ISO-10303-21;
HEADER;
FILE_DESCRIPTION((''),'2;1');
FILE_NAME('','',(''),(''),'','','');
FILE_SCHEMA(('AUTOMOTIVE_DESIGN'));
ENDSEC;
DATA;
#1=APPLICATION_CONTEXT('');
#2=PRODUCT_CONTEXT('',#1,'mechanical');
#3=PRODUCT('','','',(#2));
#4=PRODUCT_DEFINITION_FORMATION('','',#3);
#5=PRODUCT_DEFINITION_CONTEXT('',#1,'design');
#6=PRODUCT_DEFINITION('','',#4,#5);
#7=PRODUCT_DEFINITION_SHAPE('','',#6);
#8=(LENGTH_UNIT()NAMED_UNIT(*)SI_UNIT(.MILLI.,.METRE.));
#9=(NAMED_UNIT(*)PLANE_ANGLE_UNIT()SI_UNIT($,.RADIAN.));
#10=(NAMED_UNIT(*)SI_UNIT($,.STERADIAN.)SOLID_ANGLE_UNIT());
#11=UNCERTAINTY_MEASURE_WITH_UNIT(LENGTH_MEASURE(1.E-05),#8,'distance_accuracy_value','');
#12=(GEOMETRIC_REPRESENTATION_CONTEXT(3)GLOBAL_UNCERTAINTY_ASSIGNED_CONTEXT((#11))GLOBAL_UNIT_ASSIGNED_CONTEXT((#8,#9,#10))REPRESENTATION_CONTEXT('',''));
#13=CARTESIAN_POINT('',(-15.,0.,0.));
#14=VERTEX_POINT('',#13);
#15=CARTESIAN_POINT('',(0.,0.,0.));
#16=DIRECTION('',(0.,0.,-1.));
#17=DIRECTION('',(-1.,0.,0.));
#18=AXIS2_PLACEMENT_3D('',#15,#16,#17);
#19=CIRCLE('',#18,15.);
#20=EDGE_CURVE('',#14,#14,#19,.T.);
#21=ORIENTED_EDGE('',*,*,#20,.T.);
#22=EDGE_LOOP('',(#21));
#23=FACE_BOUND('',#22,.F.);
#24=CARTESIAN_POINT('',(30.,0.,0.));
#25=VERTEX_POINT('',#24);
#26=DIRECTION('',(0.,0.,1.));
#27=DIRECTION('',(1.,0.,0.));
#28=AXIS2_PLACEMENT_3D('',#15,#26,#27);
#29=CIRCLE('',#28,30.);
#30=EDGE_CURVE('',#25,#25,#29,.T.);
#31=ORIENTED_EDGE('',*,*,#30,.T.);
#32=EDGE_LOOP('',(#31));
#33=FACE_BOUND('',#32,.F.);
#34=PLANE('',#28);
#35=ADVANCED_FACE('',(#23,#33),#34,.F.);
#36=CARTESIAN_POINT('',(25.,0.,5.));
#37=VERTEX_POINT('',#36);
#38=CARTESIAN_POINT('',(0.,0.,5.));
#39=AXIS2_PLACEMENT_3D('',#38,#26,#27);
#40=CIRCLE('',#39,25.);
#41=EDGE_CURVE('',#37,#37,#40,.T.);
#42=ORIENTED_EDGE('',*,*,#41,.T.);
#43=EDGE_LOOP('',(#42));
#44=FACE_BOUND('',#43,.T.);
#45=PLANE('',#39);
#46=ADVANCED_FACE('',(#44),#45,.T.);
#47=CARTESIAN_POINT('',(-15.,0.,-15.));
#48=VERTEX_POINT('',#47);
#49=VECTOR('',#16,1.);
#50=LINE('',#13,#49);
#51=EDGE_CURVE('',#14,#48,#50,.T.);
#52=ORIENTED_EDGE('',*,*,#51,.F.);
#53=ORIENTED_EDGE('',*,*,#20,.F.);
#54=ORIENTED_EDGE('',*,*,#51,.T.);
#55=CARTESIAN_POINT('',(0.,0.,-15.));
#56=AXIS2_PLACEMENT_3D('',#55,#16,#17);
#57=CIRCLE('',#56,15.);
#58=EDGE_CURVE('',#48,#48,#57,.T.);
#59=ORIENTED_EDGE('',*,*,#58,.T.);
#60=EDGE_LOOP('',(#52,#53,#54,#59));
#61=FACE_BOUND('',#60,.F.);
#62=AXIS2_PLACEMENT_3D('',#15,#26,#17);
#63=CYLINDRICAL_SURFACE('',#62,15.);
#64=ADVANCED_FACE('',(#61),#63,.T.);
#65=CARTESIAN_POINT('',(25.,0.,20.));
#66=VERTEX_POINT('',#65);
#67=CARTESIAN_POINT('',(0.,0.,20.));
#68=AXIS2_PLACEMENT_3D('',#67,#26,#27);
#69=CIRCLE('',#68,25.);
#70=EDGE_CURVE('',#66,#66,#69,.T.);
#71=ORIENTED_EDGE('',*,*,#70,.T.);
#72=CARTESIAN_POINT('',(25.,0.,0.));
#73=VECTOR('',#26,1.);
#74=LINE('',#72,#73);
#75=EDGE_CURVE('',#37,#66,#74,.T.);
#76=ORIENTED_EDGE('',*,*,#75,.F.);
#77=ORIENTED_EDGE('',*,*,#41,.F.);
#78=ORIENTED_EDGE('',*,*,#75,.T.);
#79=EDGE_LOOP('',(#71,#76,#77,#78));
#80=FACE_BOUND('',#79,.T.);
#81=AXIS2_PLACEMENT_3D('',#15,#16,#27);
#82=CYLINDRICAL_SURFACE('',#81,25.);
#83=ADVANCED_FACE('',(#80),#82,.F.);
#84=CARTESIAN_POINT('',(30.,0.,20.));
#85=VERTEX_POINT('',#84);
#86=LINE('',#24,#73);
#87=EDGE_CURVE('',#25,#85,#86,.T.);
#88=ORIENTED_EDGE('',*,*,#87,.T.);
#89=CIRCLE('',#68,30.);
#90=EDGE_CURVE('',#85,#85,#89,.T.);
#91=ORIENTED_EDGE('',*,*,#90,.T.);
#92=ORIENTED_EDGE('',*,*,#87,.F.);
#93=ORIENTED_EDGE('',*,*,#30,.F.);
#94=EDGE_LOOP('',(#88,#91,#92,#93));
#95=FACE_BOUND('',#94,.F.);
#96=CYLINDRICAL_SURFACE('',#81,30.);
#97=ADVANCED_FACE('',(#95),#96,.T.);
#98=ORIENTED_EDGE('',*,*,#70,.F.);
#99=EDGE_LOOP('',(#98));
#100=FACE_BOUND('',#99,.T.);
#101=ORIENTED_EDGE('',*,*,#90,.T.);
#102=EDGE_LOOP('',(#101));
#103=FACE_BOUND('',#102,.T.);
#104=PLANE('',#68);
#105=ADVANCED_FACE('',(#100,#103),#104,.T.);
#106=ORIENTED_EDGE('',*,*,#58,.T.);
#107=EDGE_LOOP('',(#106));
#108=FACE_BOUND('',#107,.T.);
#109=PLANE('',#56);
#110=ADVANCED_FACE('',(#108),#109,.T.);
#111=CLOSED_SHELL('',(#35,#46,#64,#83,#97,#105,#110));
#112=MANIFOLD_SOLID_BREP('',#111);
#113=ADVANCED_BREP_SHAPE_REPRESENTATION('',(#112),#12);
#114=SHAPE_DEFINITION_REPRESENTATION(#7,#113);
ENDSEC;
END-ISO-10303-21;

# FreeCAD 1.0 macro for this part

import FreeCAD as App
import Part
import Sketcher
from FreeCAD import Vector
Q = App.Units.Quantity

doc = App.newDocument("Part")
body = doc.addObject("PartDesign::Body", "Body")

# Sketch on XY plane
sketch1 = body.newObject("Sketcher::SketchObject", "Sketch")
sketch1.AttachmentSupport = (doc.getObject("XY_Plane"), [""])
sketch1.MapMode = "FlatFace"
sketch1.addGeometry(Part.Circle(Vector(0, 0, 0), Vector(0, 0, 1), 30), False)
sketch1.addGeometry(Part.Circle(Vector(0, 0, 0), Vector(0, 0, 1), 25), False)
sketch1.addConstraint(Sketcher.Constraint("Coincident", 0, 3, -1, 1))
sketch1.addConstraint(Sketcher.Constraint("Coincident", 1, 3, -1, 1))
sketch1.addConstraint(Sketcher.Constraint("Diameter", 0, Q("60 mm")))
sketch1.addConstraint(Sketcher.Constraint("Diameter", 1, Q("50 mm")))
pad1 = body.newObject("PartDesign::Pad", "Pad")
pad1.Profile = sketch1
pad1.Length = 20

# Sketch on XY plane
sketch2 = body.newObject("Sketcher::SketchObject", "Sketch001")
sketch2.AttachmentSupport = (doc.getObject("XY_Plane"), [""])
sketch2.MapMode = "FlatFace"
sketch2.addGeometry(Part.Circle(Vector(0, 0, 0), Vector(0, 0, 1), 25), False)
sketch2.addConstraint(Sketcher.Constraint("Coincident", 0, 3, -1, 1))
sketch2.addConstraint(Sketcher.Constraint("Diameter", 0, Q("50 mm")))
pad2 = body.newObject("PartDesign::Pad", "Pad001")
pad2.Profile = sketch2
pad2.Length = 5

# Sketch on XY plane
sketch3 = body.newObject("Sketcher::SketchObject", "Sketch002")
sketch3.AttachmentSupport = (doc.getObject("XY_Plane"), [""])
sketch3.MapMode = "FlatFace"
sketch3.addGeometry(Part.Circle(Vector(0, 0, 0), Vector(0, 0, 1), 15), False)
sketch3.addConstraint(Sketcher.Constraint("Coincident", 0, 3, -1, 1))
sketch3.addConstraint(Sketcher.Constraint("Diameter", 0, Q("30 mm")))
pad3 = body.newObject("PartDesign::Pad", "Pad002")
pad3.Profile = sketch3
pad3.Length = 15
pad3.Reversed = True

doc.recompute()
